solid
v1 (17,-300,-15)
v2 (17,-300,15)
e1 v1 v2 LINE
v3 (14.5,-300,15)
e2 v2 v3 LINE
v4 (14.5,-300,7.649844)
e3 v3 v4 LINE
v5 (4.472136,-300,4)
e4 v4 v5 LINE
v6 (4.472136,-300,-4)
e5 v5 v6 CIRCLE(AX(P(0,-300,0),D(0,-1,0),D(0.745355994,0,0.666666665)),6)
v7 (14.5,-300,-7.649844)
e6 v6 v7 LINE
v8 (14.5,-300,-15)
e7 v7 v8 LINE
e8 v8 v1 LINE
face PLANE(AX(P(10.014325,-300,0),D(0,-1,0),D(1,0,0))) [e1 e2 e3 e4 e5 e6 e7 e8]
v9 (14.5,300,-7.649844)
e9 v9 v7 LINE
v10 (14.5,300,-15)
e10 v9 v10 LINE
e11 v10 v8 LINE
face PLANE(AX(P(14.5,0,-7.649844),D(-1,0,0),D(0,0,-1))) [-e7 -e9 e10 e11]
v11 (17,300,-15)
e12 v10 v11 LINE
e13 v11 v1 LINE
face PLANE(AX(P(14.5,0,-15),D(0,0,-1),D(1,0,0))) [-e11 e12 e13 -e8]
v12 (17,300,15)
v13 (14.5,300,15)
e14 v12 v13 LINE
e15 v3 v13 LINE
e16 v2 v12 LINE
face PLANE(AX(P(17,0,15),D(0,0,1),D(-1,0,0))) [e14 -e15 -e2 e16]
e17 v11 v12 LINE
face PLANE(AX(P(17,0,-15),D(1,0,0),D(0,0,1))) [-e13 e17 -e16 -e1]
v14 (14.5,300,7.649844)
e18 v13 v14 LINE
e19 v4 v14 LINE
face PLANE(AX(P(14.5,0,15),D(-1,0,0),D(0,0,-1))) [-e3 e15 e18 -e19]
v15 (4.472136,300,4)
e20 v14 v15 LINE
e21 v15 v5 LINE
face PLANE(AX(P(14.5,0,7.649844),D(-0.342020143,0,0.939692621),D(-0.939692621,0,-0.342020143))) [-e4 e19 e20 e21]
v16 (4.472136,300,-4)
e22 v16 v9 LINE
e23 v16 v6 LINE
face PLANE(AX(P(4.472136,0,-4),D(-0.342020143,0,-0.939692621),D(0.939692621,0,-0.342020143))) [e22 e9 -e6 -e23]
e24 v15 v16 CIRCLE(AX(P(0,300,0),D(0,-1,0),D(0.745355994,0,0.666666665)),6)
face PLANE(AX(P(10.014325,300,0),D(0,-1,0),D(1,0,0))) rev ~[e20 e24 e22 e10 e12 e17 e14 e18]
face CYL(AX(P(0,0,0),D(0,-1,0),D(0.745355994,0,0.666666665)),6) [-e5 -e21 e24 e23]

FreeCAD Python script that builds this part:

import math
import FreeCAD as App
import Part
import Sketcher

V = App.Vector
Q = App.Units.Quantity

doc = App.newDocument("Part")
params = doc.addObject("Spreadsheet::Sheet", "Params")
for row, (alias, value) in enumerate([
    ("sketch1_radius", "6 mm"),
    ("sketch1_height", "30 mm"),
    ("sketch1_width", "2.5 mm"),
    ("pad1_length", "300 mm"),
    ("pad1_length2", "300 mm"),
], start=1):
    params.set(f"A{row}", alias)
    params.set(f"B{row}", "=" + value)
    params.setAlias(f"B{row}", alias)

body = doc.addObject("PartDesign::Body", "Body")

# Sketch on XZ plane
sketch1 = doc.addObject("Sketcher::SketchObject", "Sketch")
body.addObject(sketch1)
sketch1.AttachmentSupport = (doc.XZ_Plane, [""])
sketch1.MapMode = "FlatFace"
sketch1.addGeometry([
    Part.LineSegment(V(14.5, 7.6, 0), V(4.5, 4, 0)),  # 0
    Part.ArcOfCircle(Part.Circle(V(0, 0, 0), V(0, 0, 1), 6), math.radians(42), math.radians(318)),  # 1
    Part.LineSegment(V(4.5, -4, 0), V(14.5, -7.6, 0)),  # 2
    Part.LineSegment(V(14.5, -7.6, 0), V(14.5, -15, 0)),  # 3
    Part.LineSegment(V(14.5, -15, 0), V(17, -15, 0)),  # 4
    Part.LineSegment(V(17, -15, 0), V(17, 15, 0)),  # 5
    Part.LineSegment(V(17, 15, 0), V(14.5, 15, 0)),  # 6
    Part.LineSegment(V(14.5, 15, 0), V(14.5, 7.6, 0)),  # 7
], False)
sketch1.addConstraint([
    Sketcher.Constraint("Coincident", 0, 2, 1, 1),
    Sketcher.Constraint("Coincident", 1, 2, 2, 1),
    Sketcher.Constraint("Coincident", 2, 2, 3, 1),
    Sketcher.Constraint("Coincident", 3, 2, 4, 1),
    Sketcher.Constraint("Coincident", 4, 2, 5, 1),
    Sketcher.Constraint("Coincident", 5, 2, 6, 1),
    Sketcher.Constraint("Coincident", 6, 2, 7, 1),
    Sketcher.Constraint("Coincident", 7, 2, 0, 1),
    Sketcher.Constraint("Vertical", 3),
    Sketcher.Constraint("Horizontal", 4),
    Sketcher.Constraint("Vertical", 5),
    Sketcher.Constraint("Horizontal", 6),
    Sketcher.Constraint("Vertical", 7),
    Sketcher.Constraint("Coincident", 1, 3, -1, 1),
    Sketcher.Constraint("Symmetric", 3, 2, 6, 2, -1),
    Sketcher.Constraint("Vertical", 0, 2, 1, 2),
    Sketcher.Constraint("Equal", 3, 7),
    Sketcher.Constraint("Radius", 1, 6.0),
    Sketcher.Constraint("DistanceY", 5, 1, 5, 2, 30.0),
    Sketcher.Constraint("Angle", 0, Q("-160 deg")),
    Sketcher.Constraint("DistanceX", 4, 1, 4, 2, 2.5),
    Sketcher.Constraint("DistanceY", -1, 1, 0, 2, 4.0),
    Sketcher.Constraint("DistanceX", -1, 1, 4, 2, 17.0),
])
sketch1.setExpression("Constraints[17]", "Params.sketch1_radius")
sketch1.setExpression("Constraints[18]", "Params.sketch1_height")
sketch1.setExpression("Constraints[20]", "Params.sketch1_width")
pad1 = doc.addObject("PartDesign::Pad", "Pad")
body.addObject(pad1)
pad1.Profile = sketch1
pad1.Type = "TwoLengths"
pad1.setExpression("Length", "Params.pad1_length")
pad1.setExpression("Length2", "Params.pad1_length2")

doc.recompute()
